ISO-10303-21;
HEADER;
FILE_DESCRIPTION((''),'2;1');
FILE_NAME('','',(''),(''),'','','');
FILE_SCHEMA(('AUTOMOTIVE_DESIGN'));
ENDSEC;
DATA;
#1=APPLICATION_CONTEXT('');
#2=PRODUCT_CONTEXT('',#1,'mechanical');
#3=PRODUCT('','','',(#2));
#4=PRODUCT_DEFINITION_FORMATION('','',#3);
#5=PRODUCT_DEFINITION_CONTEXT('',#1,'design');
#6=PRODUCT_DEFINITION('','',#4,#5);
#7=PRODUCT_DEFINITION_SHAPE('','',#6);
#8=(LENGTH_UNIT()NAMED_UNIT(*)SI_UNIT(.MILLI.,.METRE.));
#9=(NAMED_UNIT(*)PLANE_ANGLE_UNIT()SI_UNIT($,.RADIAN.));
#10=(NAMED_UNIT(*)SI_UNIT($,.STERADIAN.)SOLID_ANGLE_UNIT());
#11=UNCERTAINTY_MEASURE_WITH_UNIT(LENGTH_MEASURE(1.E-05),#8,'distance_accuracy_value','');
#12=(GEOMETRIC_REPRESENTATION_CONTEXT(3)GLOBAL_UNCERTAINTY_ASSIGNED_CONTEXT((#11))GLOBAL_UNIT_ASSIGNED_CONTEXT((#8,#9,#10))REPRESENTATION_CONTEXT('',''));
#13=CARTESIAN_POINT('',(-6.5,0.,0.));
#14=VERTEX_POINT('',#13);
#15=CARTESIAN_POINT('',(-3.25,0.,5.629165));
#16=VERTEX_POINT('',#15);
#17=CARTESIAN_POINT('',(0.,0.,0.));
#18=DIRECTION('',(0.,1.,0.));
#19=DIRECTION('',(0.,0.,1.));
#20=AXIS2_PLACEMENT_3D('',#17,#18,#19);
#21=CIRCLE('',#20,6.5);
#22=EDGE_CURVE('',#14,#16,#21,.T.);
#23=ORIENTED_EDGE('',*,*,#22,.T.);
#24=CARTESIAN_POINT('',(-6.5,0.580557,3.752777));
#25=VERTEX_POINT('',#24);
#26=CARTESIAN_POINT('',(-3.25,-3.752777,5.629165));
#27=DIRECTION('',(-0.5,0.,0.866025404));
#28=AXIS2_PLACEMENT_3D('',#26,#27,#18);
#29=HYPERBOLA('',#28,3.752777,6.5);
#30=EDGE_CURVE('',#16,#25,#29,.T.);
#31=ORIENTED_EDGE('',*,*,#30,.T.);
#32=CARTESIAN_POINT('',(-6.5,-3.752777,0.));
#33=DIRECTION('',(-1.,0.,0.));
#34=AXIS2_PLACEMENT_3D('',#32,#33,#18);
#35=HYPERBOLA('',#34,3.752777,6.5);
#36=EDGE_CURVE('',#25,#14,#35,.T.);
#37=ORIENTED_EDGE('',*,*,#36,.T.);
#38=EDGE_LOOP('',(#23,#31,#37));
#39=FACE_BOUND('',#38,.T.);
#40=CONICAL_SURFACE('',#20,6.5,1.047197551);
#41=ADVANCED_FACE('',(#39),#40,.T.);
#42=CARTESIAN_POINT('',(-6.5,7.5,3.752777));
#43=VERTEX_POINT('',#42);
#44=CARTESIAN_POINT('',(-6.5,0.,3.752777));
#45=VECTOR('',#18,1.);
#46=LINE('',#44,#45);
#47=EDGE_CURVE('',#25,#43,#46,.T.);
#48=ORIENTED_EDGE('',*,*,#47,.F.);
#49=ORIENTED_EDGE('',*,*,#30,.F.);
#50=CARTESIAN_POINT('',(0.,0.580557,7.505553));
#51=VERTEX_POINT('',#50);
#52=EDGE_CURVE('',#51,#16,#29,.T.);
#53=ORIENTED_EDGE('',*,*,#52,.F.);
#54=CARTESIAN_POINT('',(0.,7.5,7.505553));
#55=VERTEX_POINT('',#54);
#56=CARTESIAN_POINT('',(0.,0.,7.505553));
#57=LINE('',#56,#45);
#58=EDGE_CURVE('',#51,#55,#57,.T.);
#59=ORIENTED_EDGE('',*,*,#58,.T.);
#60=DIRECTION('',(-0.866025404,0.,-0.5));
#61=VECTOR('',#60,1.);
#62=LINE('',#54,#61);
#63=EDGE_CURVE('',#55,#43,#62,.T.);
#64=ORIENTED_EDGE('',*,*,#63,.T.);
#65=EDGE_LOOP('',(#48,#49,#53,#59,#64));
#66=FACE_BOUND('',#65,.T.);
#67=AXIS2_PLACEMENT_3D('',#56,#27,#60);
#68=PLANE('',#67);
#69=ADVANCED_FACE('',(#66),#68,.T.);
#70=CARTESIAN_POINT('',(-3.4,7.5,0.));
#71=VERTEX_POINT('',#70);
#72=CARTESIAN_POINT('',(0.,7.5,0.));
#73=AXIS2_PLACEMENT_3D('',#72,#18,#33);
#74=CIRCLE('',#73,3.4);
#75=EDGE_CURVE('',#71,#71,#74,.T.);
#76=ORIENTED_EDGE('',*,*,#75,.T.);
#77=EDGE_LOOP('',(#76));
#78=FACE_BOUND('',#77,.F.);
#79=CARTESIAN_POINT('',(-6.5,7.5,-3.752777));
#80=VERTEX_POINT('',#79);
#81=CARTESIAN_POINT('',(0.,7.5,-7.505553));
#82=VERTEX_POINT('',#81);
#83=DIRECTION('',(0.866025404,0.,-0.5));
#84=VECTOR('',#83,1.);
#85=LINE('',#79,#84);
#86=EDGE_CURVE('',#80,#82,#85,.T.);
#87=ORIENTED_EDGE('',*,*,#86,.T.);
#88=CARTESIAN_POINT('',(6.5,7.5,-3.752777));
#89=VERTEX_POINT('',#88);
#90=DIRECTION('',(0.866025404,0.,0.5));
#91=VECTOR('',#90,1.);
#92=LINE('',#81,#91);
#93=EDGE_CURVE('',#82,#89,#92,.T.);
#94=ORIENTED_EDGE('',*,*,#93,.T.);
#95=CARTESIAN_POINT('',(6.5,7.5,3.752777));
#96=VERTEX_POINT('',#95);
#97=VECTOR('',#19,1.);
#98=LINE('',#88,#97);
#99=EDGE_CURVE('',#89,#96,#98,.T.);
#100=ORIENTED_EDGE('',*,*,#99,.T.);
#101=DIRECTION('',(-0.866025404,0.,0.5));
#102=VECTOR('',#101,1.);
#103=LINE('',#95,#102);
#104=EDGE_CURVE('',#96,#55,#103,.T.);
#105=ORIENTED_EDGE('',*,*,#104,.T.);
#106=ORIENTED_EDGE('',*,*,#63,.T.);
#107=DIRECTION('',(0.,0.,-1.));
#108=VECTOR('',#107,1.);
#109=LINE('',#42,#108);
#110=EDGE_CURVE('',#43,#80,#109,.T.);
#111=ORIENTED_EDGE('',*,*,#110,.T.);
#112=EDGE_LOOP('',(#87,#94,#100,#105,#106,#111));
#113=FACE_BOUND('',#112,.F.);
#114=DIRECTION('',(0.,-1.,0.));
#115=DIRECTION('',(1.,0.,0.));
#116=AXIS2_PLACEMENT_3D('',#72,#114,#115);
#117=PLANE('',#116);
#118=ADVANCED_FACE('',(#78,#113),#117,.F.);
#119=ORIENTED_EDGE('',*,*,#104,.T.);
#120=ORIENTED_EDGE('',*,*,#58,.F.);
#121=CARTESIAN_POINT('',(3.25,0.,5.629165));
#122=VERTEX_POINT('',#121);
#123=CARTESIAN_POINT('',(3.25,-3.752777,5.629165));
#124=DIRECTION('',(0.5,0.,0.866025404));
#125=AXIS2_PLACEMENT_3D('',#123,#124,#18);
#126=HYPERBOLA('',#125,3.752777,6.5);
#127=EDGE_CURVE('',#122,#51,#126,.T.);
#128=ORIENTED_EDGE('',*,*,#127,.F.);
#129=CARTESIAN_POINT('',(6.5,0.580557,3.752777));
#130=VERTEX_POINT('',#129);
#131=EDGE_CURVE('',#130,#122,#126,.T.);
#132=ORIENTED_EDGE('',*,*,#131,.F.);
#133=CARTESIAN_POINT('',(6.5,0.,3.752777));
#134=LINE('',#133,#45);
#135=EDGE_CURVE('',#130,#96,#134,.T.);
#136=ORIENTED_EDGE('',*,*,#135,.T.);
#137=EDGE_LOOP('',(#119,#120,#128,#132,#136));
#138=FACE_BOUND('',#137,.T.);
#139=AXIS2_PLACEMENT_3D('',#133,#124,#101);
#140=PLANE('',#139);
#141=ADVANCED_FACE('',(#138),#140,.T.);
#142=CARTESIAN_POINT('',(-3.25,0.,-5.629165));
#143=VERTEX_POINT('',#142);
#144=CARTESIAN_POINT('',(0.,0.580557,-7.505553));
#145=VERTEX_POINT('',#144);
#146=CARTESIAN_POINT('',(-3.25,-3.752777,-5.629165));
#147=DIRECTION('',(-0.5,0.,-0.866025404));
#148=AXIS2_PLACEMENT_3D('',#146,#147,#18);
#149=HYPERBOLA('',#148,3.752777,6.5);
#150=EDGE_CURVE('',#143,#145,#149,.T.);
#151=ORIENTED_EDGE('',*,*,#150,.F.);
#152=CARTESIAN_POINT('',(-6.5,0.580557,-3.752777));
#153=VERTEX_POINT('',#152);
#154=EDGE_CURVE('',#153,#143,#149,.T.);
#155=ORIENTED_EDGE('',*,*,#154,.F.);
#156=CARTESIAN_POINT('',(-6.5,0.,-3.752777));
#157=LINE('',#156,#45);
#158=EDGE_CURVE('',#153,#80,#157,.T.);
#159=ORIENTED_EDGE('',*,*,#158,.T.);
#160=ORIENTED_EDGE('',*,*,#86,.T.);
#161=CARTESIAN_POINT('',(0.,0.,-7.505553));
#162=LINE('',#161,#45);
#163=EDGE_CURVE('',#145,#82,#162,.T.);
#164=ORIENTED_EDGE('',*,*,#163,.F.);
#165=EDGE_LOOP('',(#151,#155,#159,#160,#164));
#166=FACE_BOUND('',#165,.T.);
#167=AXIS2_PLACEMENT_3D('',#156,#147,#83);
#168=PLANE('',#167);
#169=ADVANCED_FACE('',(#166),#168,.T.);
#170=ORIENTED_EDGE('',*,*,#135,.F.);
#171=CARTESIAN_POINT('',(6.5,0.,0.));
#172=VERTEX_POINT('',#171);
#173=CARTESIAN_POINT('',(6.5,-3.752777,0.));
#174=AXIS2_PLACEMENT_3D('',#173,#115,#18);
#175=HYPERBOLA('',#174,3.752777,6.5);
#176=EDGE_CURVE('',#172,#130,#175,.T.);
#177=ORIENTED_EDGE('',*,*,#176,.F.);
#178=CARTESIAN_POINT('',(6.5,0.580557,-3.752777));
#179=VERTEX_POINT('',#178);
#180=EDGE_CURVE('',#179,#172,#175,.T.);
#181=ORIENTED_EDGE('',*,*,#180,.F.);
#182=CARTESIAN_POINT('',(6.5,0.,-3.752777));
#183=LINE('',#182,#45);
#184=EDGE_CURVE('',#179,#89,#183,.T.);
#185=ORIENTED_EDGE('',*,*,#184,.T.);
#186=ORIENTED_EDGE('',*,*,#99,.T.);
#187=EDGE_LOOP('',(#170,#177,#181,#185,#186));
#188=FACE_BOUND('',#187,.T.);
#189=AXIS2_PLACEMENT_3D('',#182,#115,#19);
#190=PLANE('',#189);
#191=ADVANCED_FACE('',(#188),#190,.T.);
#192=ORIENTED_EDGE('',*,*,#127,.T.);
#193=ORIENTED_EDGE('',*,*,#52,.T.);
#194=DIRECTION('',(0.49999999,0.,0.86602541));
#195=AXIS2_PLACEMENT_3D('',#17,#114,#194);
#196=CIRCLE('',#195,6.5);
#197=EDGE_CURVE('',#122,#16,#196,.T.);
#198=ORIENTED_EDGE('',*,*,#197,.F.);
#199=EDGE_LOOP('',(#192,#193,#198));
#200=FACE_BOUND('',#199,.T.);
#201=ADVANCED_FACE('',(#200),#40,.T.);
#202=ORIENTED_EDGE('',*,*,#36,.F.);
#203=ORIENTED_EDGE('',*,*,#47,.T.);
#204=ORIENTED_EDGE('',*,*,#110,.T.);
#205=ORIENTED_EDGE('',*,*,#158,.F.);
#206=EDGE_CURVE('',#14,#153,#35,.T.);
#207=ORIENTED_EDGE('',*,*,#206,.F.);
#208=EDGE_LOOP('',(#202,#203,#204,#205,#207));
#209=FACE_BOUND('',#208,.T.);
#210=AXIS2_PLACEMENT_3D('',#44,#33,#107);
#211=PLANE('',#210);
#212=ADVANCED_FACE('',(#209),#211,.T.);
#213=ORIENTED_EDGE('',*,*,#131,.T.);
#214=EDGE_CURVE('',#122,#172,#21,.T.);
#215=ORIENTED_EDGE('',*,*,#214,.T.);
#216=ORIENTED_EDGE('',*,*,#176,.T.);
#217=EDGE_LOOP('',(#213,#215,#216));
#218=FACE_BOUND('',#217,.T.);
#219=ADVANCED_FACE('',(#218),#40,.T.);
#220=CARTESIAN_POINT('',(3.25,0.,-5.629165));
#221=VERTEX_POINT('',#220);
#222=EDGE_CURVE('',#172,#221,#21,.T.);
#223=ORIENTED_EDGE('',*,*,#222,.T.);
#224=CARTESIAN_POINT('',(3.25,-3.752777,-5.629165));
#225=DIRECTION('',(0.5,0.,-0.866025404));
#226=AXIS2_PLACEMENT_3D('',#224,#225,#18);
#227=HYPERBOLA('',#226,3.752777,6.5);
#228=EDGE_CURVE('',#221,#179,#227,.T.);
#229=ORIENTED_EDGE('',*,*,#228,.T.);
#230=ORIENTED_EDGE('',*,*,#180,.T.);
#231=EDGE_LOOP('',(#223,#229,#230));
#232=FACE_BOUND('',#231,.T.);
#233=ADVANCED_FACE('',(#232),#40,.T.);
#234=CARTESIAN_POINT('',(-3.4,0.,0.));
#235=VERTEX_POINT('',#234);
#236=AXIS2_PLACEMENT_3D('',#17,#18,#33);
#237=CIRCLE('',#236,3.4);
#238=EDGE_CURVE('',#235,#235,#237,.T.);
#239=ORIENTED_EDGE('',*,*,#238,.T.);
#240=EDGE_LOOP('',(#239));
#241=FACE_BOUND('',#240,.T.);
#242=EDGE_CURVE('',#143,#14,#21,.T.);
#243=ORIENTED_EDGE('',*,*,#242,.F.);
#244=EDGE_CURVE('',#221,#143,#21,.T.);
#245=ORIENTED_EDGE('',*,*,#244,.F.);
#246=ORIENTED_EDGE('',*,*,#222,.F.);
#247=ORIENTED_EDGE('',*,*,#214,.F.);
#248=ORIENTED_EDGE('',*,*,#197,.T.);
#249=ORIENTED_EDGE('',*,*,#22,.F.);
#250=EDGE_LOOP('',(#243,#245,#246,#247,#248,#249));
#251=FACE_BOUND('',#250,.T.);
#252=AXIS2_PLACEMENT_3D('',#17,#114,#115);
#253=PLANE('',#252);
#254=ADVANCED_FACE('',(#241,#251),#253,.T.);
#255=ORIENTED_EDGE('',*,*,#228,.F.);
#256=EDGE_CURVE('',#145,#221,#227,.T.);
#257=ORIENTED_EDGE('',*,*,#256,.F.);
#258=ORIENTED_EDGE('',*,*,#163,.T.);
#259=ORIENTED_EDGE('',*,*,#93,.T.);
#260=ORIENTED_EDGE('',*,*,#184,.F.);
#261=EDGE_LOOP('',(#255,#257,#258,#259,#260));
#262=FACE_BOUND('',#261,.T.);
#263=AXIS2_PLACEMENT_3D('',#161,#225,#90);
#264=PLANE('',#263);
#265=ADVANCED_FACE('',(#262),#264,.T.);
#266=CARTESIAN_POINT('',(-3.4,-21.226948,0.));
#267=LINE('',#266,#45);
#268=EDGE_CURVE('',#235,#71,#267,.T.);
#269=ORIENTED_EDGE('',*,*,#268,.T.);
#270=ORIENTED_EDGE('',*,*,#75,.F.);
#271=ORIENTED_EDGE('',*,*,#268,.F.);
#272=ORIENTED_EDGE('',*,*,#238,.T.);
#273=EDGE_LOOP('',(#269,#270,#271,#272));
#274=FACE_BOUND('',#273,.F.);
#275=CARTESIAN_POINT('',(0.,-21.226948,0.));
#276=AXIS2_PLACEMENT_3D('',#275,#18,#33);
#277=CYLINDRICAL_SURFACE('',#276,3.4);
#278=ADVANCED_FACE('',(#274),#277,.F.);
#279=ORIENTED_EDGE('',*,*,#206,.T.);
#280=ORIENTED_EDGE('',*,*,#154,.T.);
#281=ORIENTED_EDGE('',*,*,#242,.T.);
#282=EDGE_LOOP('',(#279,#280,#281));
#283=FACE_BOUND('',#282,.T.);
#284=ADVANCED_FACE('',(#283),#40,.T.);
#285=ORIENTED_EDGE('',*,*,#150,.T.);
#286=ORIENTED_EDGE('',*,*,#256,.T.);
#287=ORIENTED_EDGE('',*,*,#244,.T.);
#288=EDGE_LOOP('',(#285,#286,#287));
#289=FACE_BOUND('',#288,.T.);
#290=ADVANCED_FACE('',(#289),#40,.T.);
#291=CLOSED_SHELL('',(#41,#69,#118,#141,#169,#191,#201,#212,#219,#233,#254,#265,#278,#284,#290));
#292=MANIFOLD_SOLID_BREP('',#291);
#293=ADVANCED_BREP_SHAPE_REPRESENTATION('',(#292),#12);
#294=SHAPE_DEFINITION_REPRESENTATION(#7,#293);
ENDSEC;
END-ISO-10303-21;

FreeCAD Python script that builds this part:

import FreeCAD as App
import Part
import Sketcher
Q = App.Units.Quantity

doc = App.newDocument("Part")
body = doc.addObject("PartDesign::Body", "Body")

# Sketch on XZ plane
sketch1 = body.newObject("Sketcher::SketchObject", "Sketch")
sketch1.AttachmentSupport = (doc.getObject("XZ_Plane"), [""])
sketch1.MapMode = "FlatFace"
sketch1.addGeometry(Part.LineSegment(App.Vector(6, -4, 0), App.Vector(6, 4, 0)), False)
sketch1.addGeometry(Part.LineSegment(App.Vector(6, 4, 0), App.Vector(0, 8, 0)), False)
sketch1.addGeometry(Part.LineSegment(App.Vector(0, 8, 0), App.Vector(-6, 4, 0)), False)
sketch1.addGeometry(Part.LineSegment(App.Vector(-6, 4, 0), App.Vector(-6, -4, 0)), False)
sketch1.addGeometry(Part.LineSegment(App.Vector(-6, -4, 0), App.Vector(0, -8, 0)), False)
sketch1.addGeometry(Part.LineSegment(App.Vector(0, -8, 0), App.Vector(6, -4, 0)), False)
sketch1.addConstraint(Sketcher.Constraint("Coincident", 0, 2, 1, 1))
sketch1.addConstraint(Sketcher.Constraint("Coincident", 1, 2, 2, 1))
sketch1.addConstraint(Sketcher.Constraint("Coincident", 2, 2, 3, 1))
sketch1.addConstraint(Sketcher.Constraint("Coincident", 3, 2, 4, 1))
sketch1.addConstraint(Sketcher.Constraint("Coincident", 4, 2, 5, 1))
sketch1.addConstraint(Sketcher.Constraint("Coincident", 5, 2, 0, 1))
sketch1.addConstraint(Sketcher.Constraint("Vertical", 0))
sketch1.addConstraint(Sketcher.Constraint("Vertical", 3))
sketch1.addConstraint(Sketcher.Constraint("Symmetric", 0, 2, 3, 2, -1, 1))
sketch1.addConstraint(Sketcher.Constraint("Symmetric", 1, 2, 4, 2, -1, 1))
sketch1.addConstraint(Sketcher.Constraint("PointOnObject", 1, 2, -2))
sketch1.addConstraint(Sketcher.Constraint("Parallel", 2, 5))
sketch1.addConstraint(Sketcher.Constraint("Horizontal", 0, 2, 2, 2))
sketch1.addConstraint(Sketcher.Constraint("Angle", 1, Q("150 deg")))
sketch1.addConstraint(Sketcher.Constraint("DistanceX", 2, 2, 0, 2, Q("13 mm")))
sketch1.addConstraint(Sketcher.Constraint("DistanceY", 0, 1, 0, 2, Q("7.505554 mm")))
pad1 = body.newObject("PartDesign::Pad", "Pad")
pad1.Profile = sketch1
pad1.Length = 7.5
pad1.Reversed = True

# Sketch on YZ plane
sketch2 = body.newObject("Sketcher::SketchObject", "Sketch001")
sketch2.AttachmentSupport = (doc.getObject("YZ_Plane"), [""])
sketch2.MapMode = "FlatFace"
sketch2.addGeometry(Part.LineSegment(App.Vector(0, 11.5, 0), App.Vector(0, 6.5, 0)), False)
sketch2.addGeometry(Part.LineSegment(App.Vector(0, 6.5, 0), App.Vector(2.9, 11.5, 0)), False)
sketch2.addGeometry(Part.LineSegment(App.Vector(2.9, 11.5, 0), App.Vector(0, 11.5, 0)), False)
sketch2.addConstraint(Sketcher.Constraint("Coincident", 0, 2, 1, 1))
sketch2.addConstraint(Sketcher.Constraint("Coincident", 1, 2, 2, 1))
sketch2.addConstraint(Sketcher.Constraint("Coincident", 2, 2, 0, 1))
sketch2.addConstraint(Sketcher.Constraint("Vertical", 0))
sketch2.addConstraint(Sketcher.Constraint("Horizontal", 2))
sketch2.addConstraint(Sketcher.Constraint("PointOnObject", 0, 2, -2))
sketch2.addConstraint(Sketcher.Constraint("Angle", 1, Q("60 deg")))
sketch2.addConstraint(Sketcher.Constraint("DistanceY", -1, 1, 0, 2, Q("6.5 mm")))
sketch2.addConstraint(Sketcher.Constraint("DistanceX", 2, 2, 2, 1, Q("2.889958 mm")))
groove = body.newObject("PartDesign::Groove", "Groove")
groove.Profile = sketch2
groove.ReferenceAxis = (sketch2, ["H_Axis"])
groove.Angle = 360

# Sketch on XZ plane
sketch3 = body.newObject("Sketcher::SketchObject", "Sketch002")
sketch3.AttachmentSupport = (doc.getObject("XZ_Plane"), [""])
sketch3.MapMode = "FlatFace"
sketch3.addGeometry(Part.Circle(App.Vector(0, 0, 0), App.Vector(0, 0, 1), 3.4), False)
sketch3.addConstraint(Sketcher.Constraint("Coincident", 0, 3, -1, 1))
sketch3.addConstraint(Sketcher.Constraint("Diameter", 0, Q("6.8 mm")))
doc.recompute()
hole = body.newObject("PartDesign::Hole", "Hole")
hole.Profile = sketch3
hole.ThreadType = "None"
hole.Diameter = 6.8
hole.DepthType = "ThroughAll"

doc.recompute()
